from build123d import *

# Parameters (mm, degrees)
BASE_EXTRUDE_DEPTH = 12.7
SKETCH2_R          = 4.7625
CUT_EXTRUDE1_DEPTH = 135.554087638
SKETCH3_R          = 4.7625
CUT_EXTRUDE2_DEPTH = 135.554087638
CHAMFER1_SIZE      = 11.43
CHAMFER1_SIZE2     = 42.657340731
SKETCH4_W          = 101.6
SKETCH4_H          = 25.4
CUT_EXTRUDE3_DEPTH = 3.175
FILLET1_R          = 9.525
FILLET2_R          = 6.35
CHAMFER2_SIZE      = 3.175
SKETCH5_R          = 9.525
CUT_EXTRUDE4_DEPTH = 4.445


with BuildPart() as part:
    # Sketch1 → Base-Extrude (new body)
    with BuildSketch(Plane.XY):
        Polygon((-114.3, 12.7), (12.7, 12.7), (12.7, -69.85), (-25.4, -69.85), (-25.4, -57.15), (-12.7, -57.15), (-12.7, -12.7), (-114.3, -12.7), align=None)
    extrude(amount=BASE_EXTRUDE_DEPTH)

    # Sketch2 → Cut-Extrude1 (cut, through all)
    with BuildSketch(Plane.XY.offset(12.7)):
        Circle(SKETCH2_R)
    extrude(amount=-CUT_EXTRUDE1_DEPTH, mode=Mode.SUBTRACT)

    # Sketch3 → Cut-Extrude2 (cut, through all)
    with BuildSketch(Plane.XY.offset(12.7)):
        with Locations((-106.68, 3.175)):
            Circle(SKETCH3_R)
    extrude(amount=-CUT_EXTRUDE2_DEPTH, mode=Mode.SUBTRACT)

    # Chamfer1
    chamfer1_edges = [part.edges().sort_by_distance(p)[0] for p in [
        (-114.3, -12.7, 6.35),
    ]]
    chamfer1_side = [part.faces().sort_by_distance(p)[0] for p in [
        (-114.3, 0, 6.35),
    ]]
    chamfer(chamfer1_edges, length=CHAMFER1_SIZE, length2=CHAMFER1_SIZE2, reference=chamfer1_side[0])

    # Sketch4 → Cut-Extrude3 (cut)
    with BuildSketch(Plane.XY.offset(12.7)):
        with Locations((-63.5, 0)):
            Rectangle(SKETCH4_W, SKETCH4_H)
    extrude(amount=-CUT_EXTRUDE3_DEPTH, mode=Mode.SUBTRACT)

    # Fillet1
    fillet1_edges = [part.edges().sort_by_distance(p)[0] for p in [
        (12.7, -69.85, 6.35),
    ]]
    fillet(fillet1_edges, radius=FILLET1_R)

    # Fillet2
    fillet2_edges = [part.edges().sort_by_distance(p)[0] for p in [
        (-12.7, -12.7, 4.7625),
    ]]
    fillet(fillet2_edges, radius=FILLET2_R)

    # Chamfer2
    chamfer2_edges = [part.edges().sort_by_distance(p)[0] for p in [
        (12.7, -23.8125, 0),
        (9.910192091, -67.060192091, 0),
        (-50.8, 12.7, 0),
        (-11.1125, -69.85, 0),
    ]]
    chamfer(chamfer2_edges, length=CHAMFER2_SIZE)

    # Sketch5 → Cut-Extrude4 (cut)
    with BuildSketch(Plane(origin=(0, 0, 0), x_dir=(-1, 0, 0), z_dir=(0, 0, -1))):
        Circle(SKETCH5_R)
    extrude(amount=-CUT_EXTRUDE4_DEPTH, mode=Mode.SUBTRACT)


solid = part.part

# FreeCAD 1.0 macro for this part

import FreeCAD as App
import Part
import Sketcher

V = App.Vector
Q = App.Units.Quantity


def edges_at(feature, points):
    """Names of the edges that pass closest to the given points."""
    edges = feature.Shape.Edges
    near = lambda p: min(range(len(edges)), key=lambda i: edges[i].distToShape(Part.Vertex(*p))[0])
    return sorted({f"Edge{near(p) + 1}" for p in points})

doc = App.newDocument("Part")
params = doc.addObject("Spreadsheet::Sheet", "Params")
for row, (alias, value) in enumerate([
    ("sketch1_width", "5 in"),
    ("sketch1_width2", "4 in"),
    ("sketch1_height", "1 in"),
    ("sketch1_width3", "0.5 in"),
    ("sketch1_height2", "1.75 in"),
    ("pad1_length", "0.5 in"),
    ("sketch2_diameter", "0.375 in"),
    ("sketch3_diameter", "0.375 in"),
    ("chamfer_size", "0.45 in"),
    ("chamfer_size2", "42.657341 mm"),
    ("sketch4_width", "4 in"),
    ("sketch4_height", "1 in"),
    ("pocket3_length", "0.125 in"),
    ("fillet_radius", "0.375 in"),
    ("fillet2_radius", "0.25 in"),
    ("chamfer2_size", "0.125 in"),
    ("sketch5_diameter", "0.75 in"),
    ("pocket4_length", "0.175 in"),
], start=1):
    params.set(f"A{row}", alias)
    params.set(f"B{row}", "=" + value)
    params.setAlias(f"B{row}", alias)

body = doc.addObject("PartDesign::Body", "Body")

# Sketch on XY plane
sketch1 = body.newObject("Sketcher::SketchObject", "Sketch")
sketch1.AttachmentSupport = (doc.getObject("XY_Plane"), [""])
sketch1.MapMode = "FlatFace"
sketch1.addGeometry([
    Part.LineSegment(V(12.7, 12.7, 0), V(-114.3, 12.7, 0)),  # 0
    Part.LineSegment(V(-114.3, 12.7, 0), V(-114.3, -12.7, 0)),  # 1
    Part.LineSegment(V(-114.3, -12.7, 0), V(-12.7, -12.7, 0)),  # 2
    Part.LineSegment(V(-12.7, -12.7, 0), V(-12.7, -57.15, 0)),  # 3
    Part.LineSegment(V(-12.7, -57.15, 0), V(-25.4, -57.15, 0)),  # 4
    Part.LineSegment(V(-25.4, -57.15, 0), V(-25.4, -69.85, 0)),  # 5
    Part.LineSegment(V(-25.4, -69.85, 0), V(12.7, -69.85, 0)),  # 6
    Part.LineSegment(V(12.7, -69.85, 0), V(12.7, 12.7, 0)),  # 7
], False)
sketch1.addConstraint([
    Sketcher.Constraint("Coincident", 0, 2, 1, 1),
    Sketcher.Constraint("Coincident", 1, 2, 2, 1),
    Sketcher.Constraint("Coincident", 2, 2, 3, 1),
    Sketcher.Constraint("Coincident", 3, 2, 4, 1),
    Sketcher.Constraint("Coincident", 4, 2, 5, 1),
    Sketcher.Constraint("Coincident", 5, 2, 6, 1),
    Sketcher.Constraint("Coincident", 6, 2, 7, 1),
    Sketcher.Constraint("Coincident", 7, 2, 0, 1),
    Sketcher.Constraint("Horizontal", 0),
    Sketcher.Constraint("Vertical", 1),
    Sketcher.Constraint("Horizontal", 2),
    Sketcher.Constraint("Vertical", 3),
    Sketcher.Constraint("Horizontal", 4),
    Sketcher.Constraint("Vertical", 5),
    Sketcher.Constraint("Horizontal", 6),
    Sketcher.Constraint("Vertical", 7),
    Sketcher.Constraint("Symmetric", 2, 2, 7, 2, -1, 1),
    Sketcher.Constraint("Equal", 4, 5),
    Sketcher.Constraint("DistanceX", 0, 2, 0, 1, Q("5 in")),
    Sketcher.Constraint("DistanceX", 2, 1, 2, 2, Q("4 in")),
    Sketcher.Constraint("DistanceY", 1, 2, 1, 1, Q("1 in")),
    Sketcher.Constraint("DistanceX", 4, 2, 4, 1, Q("0.5 in")),
    Sketcher.Constraint("DistanceY", 3, 2, 3, 1, Q("1.75 in")),
])
sketch1.setExpression("Constraints[18]", "Params.sketch1_width")
sketch1.setExpression("Constraints[19]", "Params.sketch1_width2")
sketch1.setExpression("Constraints[20]", "Params.sketch1_height")
sketch1.setExpression("Constraints[21]", "Params.sketch1_width3")
sketch1.setExpression("Constraints[22]", "Params.sketch1_height2")
pad1 = body.newObject("PartDesign::Pad", "Pad")
pad1.Profile = sketch1
pad1.setExpression("Length", "Params.pad1_length")

# Sketch on XY plane
sketch2 = body.newObject("Sketcher::SketchObject", "Sketch001")
sketch2.AttachmentSupport = (doc.getObject("XY_Plane"), [""])
sketch2.MapMode = "FlatFace"
sketch2.AttachmentOffset = App.Placement(V(0, 0, 0.5 * 25.4), App.Rotation())
sketch2.addGeometry(Part.Circle(V(0, 0, 0), V(0, 0, 1), 4.7625), False)
sketch2.addConstraint([
    Sketcher.Constraint("Coincident", 0, 3, -1, 1),
    Sketcher.Constraint("Diameter", 0, Q("0.375 in")),
])
sketch2.setExpression("Constraints[1]", "Params.sketch2_diameter")
pocket1 = body.newObject("PartDesign::Pocket", "Pocket")
pocket1.Profile = sketch2
pocket1.Type = "ThroughAll"

# Sketch on XY plane
sketch3 = body.newObject("Sketcher::SketchObject", "Sketch002")
sketch3.AttachmentSupport = (doc.getObject("XY_Plane"), [""])
sketch3.MapMode = "FlatFace"
sketch3.AttachmentOffset = App.Placement(V(0, 0, 0.5 * 25.4), App.Rotation())
sketch3.addGeometry(Part.Circle(V(-106.68, 3.175, 0), V(0, 0, 1), 4.7625), False)
sketch3.addConstraint([
    Sketcher.Constraint("Diameter", 0, Q("0.375 in")),
    Sketcher.Constraint("DistanceX", 0, 3, -1, 1, Q("4.2 in")),
    Sketcher.Constraint("DistanceY", -1, 1, 0, 3, Q("0.125 in")),
])
sketch3.setExpression("Constraints[0]", "Params.sketch3_diameter")
pocket2 = body.newObject("PartDesign::Pocket", "Pocket001")
pocket2.Profile = sketch3
pocket2.Type = "ThroughAll"
doc.recompute()

chamfer = body.newObject("PartDesign::Chamfer", "Chamfer")
chamfer.Base = (pocket2, edges_at(pocket2, [(-114.3, -12.7, 6.35)]))
chamfer.ChamferType = "Two distances"
chamfer.setExpression("Size", "Params.chamfer_size")
chamfer.setExpression("Size2", "Params.chamfer_size2")

# Sketch on XY plane
sketch4 = body.newObject("Sketcher::SketchObject", "Sketch003")
sketch4.AttachmentSupport = (doc.getObject("XY_Plane"), [""])
sketch4.MapMode = "FlatFace"
sketch4.AttachmentOffset = App.Placement(V(0, 0, 0.5 * 25.4), App.Rotation())
sketch4.addGeometry([
    Part.LineSegment(V(-114.3, 12.7, 0), V(-114.3, -12.7, 0)),
    Part.LineSegment(V(-114.3, -12.7, 0), V(-12.7, -12.7, 0)),
    Part.LineSegment(V(-12.7, -12.7, 0), V(-12.7, 12.7, 0)),
    Part.LineSegment(V(-12.7, 12.7, 0), V(-114.3, 12.7, 0)),
], False)
sketch4.addConstraint([
    Sketcher.Constraint("Coincident", 0, 2, 1, 1),
    Sketcher.Constraint("Coincident", 1, 2, 2, 1),
    Sketcher.Constraint("Coincident", 2, 2, 3, 1),
    Sketcher.Constraint("Coincident", 3, 2, 0, 1),
    Sketcher.Constraint("Vertical", 0),
    Sketcher.Constraint("Horizontal", 1),
    Sketcher.Constraint("Vertical", 2),
    Sketcher.Constraint("Horizontal", 3),
    Sketcher.Constraint("DistanceX", 1, 1, 1, 2, Q("4 in")),
    Sketcher.Constraint("DistanceY", 0, 2, 0, 1, Q("1 in")),
    Sketcher.Constraint("DistanceX", 0, 2, -1, 1, Q("4.5 in")),
    Sketcher.Constraint("DistanceY", 0, 2, -1, 1, Q("0.5 in")),
])
sketch4.setExpression("Constraints[8]", "Params.sketch4_width")
sketch4.setExpression("Constraints[9]", "Params.sketch4_height")
pocket3 = body.newObject("PartDesign::Pocket", "Pocket002")
pocket3.Profile = sketch4
pocket3.setExpression("Length", "Params.pocket3_length")
doc.recompute()

fillet = body.newObject("PartDesign::Fillet", "Fillet")
fillet.Base = (pocket3, edges_at(pocket3, [(12.7, -69.85, 6.35)]))
fillet.setExpression("Radius", "Params.fillet_radius")
doc.recompute()

fillet2 = body.newObject("PartDesign::Fillet", "Fillet001")
fillet2.Base = (fillet, edges_at(fillet, [(-12.7, -12.7, 4.763)]))
fillet2.setExpression("Radius", "Params.fillet2_radius")
doc.recompute()

chamfer2 = body.newObject("PartDesign::Chamfer", "Chamfer001")
chamfer2.Base = (fillet2, edges_at(fillet2, [
    (12.7, -23.812, 0),
    (9.91, -67.06, 0),
    (-50.8, 12.7, 0),
    (-11.113, -69.85, 0),
]))
chamfer2.setExpression("Size", "Params.chamfer2_size")

# Sketch on XY plane
sketch5 = body.newObject("Sketcher::SketchObject", "Sketch004")
sketch5.AttachmentSupport = (doc.getObject("XY_Plane"), [""])
sketch5.MapMode = "FlatFace"
sketch5.addGeometry(Part.Circle(V(0, 0, 0), V(0, 0, 1), 9.525), False)
sketch5.addConstraint([
    Sketcher.Constraint("Coincident", 0, 3, -1, 1),
    Sketcher.Constraint("Diameter", 0, Q("0.75 in")),
])
sketch5.setExpression("Constraints[1]", "Params.sketch5_diameter")
pocket4 = body.newObject("PartDesign::Pocket", "Pocket003")
pocket4.Profile = sketch5
pocket4.setExpression("Length", "Params.pocket4_length")
pocket4.Reversed = True

doc.recompute()
